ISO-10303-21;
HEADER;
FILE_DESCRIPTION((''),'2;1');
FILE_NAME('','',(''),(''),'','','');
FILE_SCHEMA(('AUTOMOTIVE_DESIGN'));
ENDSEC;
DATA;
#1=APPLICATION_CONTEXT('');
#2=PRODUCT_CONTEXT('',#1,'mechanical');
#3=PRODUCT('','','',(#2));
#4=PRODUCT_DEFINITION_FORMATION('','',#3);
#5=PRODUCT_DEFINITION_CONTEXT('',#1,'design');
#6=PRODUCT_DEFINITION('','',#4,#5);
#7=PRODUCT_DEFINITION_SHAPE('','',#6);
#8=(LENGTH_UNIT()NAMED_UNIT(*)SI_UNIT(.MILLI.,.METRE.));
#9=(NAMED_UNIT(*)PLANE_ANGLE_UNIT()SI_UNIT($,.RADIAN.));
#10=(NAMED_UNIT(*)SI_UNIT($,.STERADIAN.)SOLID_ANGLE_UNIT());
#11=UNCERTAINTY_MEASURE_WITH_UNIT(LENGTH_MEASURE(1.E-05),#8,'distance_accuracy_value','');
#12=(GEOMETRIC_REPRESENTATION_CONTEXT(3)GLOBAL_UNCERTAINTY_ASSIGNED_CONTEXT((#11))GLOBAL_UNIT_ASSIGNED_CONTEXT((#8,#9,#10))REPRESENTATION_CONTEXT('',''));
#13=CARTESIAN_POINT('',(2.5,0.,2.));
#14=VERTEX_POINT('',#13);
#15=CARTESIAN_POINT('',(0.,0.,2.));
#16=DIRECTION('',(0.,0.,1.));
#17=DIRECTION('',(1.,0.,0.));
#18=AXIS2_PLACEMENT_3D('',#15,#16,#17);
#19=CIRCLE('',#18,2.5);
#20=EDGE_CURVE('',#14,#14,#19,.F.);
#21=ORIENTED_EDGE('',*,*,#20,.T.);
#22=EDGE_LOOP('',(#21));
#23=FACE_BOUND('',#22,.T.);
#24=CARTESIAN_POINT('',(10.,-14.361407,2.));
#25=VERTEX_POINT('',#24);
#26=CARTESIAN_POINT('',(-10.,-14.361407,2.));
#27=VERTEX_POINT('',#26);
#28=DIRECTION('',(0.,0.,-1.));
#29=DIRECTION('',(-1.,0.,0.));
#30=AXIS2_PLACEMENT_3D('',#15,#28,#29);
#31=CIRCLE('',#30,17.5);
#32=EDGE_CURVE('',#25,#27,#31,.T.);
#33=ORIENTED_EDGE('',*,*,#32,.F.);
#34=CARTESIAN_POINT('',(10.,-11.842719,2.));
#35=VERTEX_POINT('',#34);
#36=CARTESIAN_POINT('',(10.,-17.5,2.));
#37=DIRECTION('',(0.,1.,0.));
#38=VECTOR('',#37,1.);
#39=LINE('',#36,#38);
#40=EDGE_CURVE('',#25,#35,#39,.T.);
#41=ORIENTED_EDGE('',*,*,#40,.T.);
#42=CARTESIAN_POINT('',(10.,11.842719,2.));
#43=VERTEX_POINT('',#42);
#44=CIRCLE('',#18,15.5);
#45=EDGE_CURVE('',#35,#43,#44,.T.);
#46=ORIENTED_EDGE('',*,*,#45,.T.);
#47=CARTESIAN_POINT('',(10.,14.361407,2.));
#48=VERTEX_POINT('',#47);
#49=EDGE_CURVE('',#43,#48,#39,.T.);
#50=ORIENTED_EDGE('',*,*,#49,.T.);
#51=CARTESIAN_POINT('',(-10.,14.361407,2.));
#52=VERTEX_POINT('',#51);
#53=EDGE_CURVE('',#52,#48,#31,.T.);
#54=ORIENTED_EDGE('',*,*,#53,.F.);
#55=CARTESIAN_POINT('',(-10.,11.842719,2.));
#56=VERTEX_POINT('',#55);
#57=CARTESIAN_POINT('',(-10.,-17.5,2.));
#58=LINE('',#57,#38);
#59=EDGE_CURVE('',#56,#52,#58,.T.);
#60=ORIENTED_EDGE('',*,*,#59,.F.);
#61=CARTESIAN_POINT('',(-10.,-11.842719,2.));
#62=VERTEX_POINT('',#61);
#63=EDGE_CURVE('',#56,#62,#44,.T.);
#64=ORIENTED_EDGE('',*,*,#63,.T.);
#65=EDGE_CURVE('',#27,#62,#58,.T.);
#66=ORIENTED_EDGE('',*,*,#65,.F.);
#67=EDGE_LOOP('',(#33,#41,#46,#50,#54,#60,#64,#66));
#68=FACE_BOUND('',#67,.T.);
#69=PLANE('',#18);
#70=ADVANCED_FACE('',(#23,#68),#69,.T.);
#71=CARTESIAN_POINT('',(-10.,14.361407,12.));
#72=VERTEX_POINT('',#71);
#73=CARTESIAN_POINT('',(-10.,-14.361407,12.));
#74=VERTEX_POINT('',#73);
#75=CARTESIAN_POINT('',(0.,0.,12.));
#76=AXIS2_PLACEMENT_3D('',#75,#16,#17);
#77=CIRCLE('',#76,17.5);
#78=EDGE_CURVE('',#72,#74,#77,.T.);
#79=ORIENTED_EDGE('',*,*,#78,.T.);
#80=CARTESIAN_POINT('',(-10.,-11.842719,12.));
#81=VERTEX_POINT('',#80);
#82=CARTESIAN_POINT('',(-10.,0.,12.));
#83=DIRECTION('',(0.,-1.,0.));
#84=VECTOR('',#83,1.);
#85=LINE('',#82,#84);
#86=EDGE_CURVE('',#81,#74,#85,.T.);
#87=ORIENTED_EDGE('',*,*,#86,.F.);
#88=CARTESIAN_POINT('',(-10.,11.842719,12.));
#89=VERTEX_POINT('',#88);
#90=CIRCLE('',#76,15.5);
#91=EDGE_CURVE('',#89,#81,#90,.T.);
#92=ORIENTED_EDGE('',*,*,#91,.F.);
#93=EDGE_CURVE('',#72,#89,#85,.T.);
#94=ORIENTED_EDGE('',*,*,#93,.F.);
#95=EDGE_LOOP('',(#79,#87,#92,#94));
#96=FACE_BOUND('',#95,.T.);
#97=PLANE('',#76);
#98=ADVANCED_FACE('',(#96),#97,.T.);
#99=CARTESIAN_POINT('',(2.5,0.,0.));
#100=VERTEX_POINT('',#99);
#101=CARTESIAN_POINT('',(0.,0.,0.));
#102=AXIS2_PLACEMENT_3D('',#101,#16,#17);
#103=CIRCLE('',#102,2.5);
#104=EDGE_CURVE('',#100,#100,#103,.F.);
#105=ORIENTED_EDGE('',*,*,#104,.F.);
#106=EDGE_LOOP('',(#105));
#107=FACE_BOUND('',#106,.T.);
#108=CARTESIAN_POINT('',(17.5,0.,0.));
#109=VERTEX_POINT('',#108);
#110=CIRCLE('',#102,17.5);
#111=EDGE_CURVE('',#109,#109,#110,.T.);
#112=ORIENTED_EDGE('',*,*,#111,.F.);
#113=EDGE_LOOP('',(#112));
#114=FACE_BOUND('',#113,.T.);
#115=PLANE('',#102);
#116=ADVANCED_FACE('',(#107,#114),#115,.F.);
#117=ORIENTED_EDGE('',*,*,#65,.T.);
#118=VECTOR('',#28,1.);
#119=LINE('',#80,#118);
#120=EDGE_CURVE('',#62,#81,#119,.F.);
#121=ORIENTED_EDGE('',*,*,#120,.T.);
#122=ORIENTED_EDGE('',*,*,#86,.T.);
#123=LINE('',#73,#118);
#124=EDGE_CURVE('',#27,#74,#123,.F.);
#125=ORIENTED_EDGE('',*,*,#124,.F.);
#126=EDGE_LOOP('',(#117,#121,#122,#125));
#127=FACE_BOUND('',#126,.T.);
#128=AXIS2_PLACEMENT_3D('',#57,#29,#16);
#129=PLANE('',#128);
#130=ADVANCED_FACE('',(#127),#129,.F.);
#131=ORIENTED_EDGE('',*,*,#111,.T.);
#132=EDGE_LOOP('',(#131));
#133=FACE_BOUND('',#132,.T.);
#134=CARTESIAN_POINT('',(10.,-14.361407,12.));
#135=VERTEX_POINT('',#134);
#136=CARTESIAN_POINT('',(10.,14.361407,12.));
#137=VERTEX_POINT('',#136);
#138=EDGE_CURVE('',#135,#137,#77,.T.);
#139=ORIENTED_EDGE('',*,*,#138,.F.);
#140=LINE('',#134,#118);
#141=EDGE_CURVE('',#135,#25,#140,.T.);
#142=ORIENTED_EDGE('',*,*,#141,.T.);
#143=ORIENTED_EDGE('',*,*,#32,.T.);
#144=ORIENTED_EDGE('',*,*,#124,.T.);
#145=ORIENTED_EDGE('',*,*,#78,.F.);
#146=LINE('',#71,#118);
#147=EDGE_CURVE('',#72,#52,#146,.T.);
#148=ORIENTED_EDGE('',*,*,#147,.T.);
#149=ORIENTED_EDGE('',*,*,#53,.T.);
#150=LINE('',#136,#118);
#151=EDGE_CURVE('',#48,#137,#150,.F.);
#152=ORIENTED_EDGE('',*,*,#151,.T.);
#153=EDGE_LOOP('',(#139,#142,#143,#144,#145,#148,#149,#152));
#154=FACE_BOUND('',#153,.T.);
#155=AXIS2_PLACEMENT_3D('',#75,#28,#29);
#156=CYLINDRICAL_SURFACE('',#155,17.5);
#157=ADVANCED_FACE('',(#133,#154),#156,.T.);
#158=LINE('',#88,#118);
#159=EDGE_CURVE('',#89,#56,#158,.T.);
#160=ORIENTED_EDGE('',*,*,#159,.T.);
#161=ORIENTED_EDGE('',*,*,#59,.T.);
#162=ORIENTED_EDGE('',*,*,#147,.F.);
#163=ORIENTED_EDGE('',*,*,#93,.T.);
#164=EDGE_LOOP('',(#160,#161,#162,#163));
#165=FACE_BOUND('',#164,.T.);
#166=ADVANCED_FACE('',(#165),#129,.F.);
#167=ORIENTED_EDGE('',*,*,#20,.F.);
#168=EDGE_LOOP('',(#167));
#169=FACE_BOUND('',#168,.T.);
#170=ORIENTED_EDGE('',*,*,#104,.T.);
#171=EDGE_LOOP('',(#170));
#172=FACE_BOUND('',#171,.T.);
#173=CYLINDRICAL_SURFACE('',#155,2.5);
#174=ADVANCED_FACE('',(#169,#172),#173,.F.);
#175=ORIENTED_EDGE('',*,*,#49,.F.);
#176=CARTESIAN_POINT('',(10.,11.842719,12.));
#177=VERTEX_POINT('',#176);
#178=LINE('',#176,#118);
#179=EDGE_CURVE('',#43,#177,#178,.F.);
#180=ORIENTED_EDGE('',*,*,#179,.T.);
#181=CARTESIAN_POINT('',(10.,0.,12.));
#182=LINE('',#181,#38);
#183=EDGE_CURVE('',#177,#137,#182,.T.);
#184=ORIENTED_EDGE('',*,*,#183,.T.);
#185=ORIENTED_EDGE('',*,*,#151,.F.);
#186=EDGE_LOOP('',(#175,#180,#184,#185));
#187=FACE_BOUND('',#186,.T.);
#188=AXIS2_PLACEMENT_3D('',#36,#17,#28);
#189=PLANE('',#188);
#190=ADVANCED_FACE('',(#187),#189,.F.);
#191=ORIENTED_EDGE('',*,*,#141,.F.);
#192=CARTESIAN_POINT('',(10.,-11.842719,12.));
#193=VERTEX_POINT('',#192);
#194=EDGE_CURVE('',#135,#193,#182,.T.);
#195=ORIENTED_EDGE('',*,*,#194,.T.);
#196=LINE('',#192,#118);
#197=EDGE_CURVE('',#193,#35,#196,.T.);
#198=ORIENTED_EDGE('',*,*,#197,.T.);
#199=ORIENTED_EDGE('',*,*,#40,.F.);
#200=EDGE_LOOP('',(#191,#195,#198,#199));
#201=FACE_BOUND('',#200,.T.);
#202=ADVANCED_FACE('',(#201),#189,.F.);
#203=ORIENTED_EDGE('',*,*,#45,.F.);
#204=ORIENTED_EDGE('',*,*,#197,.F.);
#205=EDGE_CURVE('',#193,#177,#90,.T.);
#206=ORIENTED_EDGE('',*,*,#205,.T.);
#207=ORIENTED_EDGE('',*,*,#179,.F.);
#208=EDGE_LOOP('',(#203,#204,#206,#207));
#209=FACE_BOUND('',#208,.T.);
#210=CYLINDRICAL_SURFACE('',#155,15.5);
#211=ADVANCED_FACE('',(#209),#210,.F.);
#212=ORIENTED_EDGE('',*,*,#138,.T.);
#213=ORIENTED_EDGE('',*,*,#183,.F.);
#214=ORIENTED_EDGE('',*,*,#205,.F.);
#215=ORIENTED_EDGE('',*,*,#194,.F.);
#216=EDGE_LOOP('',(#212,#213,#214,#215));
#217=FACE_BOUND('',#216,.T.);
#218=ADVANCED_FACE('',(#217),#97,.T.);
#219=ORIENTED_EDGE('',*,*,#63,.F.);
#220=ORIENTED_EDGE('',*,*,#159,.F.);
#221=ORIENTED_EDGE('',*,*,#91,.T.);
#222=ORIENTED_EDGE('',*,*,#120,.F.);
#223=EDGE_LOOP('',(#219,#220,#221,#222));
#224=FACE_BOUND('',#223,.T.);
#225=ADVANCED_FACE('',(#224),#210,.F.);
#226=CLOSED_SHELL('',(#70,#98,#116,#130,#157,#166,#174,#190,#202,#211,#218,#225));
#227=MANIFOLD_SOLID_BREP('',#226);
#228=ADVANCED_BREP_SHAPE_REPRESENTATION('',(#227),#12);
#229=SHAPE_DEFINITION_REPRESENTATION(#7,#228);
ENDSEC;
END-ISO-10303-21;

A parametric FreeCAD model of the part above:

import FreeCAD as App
import Part
import Sketcher

V = App.Vector
Q = App.Units.Quantity


def faces_at(feature, points):
    """Names of the faces that lie closest to the given points."""
    faces = feature.Shape.Faces
    near = lambda p: min(range(len(faces)), key=lambda i: faces[i].distToShape(Part.Vertex(*p))[0])
    return sorted({f"Face{near(p) + 1}" for p in points})

doc = App.newDocument("Part")
body = doc.addObject("PartDesign::Body", "Body")

sketch1 = body.newObject("Sketcher::SketchObject", "Sketch")
sketch1.AttachmentSupport = (doc.getObject("XY_Plane"), [""])
sketch1.MapMode = "FlatFace"
sketch1.addGeometry(Part.Circle(V(0, 0, 0), V(0, 0, 1), 17.5), False)
sketch1.addConstraint(Sketcher.Constraint("Coincident", 0, 3, -1, 1))
sketch1.addConstraint(Sketcher.Constraint("Diameter", 0, Q("35 mm")))
pad1 = body.newObject("PartDesign::Pad", "Pad")
pad1.Profile = sketch1
pad1.Length = 12
doc.recompute()

thickness = body.newObject("PartDesign::Thickness", "Thickness")
thickness.Base = (pad1, faces_at(pad1, [(0, 0, 12)]))
thickness.Value = 2
thickness.Reversed = True
thickness.Join = "Intersection"

sketch2 = body.newObject("Sketcher::SketchObject", "Sketch001")
sketch2.AttachmentSupport = (doc.getObject("XY_Plane"), [""])
sketch2.MapMode = "FlatFace"
sketch2.addGeometry(Part.Circle(V(0, 0, 0), V(0, 0, 1), 2.5), False)
sketch2.addConstraint(Sketcher.Constraint("Coincident", 0, 3, -1, 1))
sketch2.addConstraint(Sketcher.Constraint("Diameter", 0, Q("5 mm")))
pocket1 = body.newObject("PartDesign::Pocket", "Pocket")
pocket1.Profile = sketch2
pocket1.Type = "ThroughAll"
pocket1.Midplane = True

sketch3 = body.newObject("Sketcher::SketchObject", "Sketch002")
sketch3.AttachmentSupport = (doc.getObject("XZ_Plane"), [""])
sketch3.MapMode = "FlatFace"
sketch3.addGeometry(Part.LineSegment(V(-10, 2, 0), V(-10, 26.94067, 0)), False)
sketch3.addGeometry(Part.LineSegment(V(-10, 26.94067, 0), V(10, 26.94067, 0)), False)
sketch3.addGeometry(Part.LineSegment(V(10, 26.94067, 0), V(10, 2, 0)), False)
sketch3.addGeometry(Part.LineSegment(V(10, 2, 0), V(-10, 2, 0)), False)
sketch3.addConstraint(Sketcher.Constraint("Coincident", 0, 2, 1, 1))
sketch3.addConstraint(Sketcher.Constraint("Coincident", 1, 2, 2, 1))
sketch3.addConstraint(Sketcher.Constraint("Coincident", 2, 2, 3, 1))
sketch3.addConstraint(Sketcher.Constraint("Coincident", 3, 2, 0, 1))
sketch3.addConstraint(Sketcher.Constraint("Vertical", 0))
sketch3.addConstraint(Sketcher.Constraint("Horizontal", 1))
sketch3.addConstraint(Sketcher.Constraint("Vertical", 2))
sketch3.addConstraint(Sketcher.Constraint("Horizontal", 3))
sketch3.addConstraint(Sketcher.Constraint("DistanceX", 1, 1, 1, 2, Q("20 mm")))
sketch3.addConstraint(Sketcher.Constraint("DistanceX", 0, 2, -1, 1, Q("10 mm")))
sketch3.addConstraint(Sketcher.Constraint("DistanceY", -1, 1, 2, 2, Q("2 mm")))
sketch3.addConstraint(Sketcher.Constraint("DistanceY", 0, 1, 0, 2, Q("24.94067 mm")))
pocket2 = body.newObject("PartDesign::Pocket", "Pocket001")
pocket2.Profile = sketch3
pocket2.Type = "ThroughAll"
pocket2.Midplane = True

doc.recompute()
